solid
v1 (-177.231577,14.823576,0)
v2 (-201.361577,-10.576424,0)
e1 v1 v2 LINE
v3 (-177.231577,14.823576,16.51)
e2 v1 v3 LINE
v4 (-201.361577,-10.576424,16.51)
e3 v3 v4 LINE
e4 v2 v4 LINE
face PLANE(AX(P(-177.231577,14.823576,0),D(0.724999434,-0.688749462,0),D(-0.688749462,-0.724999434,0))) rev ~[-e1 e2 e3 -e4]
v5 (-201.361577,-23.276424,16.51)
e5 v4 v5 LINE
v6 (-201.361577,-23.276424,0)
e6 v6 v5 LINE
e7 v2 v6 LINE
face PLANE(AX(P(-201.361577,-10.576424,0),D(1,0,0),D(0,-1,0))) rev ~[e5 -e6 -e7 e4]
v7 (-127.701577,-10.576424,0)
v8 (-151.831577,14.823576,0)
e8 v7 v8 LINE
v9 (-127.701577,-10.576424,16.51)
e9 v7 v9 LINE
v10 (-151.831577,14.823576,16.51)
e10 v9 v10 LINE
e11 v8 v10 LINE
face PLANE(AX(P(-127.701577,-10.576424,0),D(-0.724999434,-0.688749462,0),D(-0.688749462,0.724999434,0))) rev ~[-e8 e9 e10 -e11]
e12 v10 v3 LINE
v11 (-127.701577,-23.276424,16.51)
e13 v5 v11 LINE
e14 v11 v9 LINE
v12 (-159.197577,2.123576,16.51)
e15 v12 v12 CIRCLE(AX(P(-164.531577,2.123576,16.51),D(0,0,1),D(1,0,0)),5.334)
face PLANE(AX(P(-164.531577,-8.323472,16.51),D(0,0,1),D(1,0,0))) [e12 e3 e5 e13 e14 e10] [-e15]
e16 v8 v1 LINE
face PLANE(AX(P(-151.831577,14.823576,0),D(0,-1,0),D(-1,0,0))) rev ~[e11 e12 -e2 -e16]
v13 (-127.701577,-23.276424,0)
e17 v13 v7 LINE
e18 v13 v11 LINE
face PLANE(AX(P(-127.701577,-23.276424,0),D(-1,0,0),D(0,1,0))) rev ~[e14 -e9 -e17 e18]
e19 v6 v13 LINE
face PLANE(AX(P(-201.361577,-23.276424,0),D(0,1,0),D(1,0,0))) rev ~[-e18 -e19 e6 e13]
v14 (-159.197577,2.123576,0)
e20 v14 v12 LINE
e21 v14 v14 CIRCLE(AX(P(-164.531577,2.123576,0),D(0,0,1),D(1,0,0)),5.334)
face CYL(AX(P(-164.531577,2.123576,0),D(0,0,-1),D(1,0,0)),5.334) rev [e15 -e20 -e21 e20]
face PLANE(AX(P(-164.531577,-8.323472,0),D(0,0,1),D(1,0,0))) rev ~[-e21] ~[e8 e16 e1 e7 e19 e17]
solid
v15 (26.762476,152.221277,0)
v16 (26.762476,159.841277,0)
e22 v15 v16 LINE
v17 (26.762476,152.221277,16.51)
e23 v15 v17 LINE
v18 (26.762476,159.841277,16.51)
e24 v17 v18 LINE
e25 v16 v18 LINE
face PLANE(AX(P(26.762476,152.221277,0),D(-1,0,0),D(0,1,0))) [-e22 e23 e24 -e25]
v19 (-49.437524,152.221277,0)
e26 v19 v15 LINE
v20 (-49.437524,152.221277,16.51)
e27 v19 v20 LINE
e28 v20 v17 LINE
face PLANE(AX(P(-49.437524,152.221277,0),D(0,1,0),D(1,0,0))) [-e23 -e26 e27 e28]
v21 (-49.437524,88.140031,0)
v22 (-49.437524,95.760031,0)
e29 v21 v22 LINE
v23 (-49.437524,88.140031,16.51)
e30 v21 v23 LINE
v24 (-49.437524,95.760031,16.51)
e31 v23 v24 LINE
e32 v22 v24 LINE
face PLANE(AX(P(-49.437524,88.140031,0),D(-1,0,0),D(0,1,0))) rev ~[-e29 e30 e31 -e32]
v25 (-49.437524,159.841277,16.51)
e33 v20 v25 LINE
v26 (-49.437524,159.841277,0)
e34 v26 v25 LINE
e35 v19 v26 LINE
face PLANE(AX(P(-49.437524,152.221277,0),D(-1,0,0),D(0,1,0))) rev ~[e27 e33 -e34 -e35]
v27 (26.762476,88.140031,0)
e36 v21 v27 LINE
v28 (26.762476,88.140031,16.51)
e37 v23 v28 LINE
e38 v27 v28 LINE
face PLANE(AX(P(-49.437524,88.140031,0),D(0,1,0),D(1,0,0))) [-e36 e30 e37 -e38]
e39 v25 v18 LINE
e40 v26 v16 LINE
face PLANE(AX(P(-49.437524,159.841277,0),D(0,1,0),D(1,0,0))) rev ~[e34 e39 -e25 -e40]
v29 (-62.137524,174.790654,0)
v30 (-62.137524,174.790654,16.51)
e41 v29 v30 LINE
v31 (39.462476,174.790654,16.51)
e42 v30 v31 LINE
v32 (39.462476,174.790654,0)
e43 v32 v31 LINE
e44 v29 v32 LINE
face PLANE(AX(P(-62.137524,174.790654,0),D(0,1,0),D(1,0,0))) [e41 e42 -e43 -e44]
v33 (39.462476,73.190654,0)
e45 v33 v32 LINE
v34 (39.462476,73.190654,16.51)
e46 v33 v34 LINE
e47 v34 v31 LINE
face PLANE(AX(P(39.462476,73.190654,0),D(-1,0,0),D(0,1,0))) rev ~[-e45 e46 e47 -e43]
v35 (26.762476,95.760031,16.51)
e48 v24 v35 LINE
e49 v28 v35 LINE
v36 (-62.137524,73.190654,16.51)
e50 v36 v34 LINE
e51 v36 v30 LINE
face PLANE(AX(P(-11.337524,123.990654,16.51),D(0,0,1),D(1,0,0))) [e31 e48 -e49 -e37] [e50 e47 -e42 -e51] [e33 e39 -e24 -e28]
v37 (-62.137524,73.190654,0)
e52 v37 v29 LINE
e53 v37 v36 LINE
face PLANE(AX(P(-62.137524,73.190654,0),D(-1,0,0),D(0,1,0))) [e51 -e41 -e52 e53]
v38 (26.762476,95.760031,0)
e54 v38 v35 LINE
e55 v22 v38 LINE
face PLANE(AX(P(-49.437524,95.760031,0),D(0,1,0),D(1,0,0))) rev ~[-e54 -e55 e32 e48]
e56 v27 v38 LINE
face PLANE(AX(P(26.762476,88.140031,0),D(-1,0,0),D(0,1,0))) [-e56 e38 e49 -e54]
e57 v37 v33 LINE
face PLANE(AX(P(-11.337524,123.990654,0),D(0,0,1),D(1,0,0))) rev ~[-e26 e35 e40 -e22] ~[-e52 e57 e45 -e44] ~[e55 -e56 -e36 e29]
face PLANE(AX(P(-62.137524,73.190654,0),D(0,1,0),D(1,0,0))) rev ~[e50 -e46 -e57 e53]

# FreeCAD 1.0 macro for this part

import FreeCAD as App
import Part
import Sketcher
from FreeCAD import Vector
Q = App.Units.Quantity


def add_polygon(sketch, points):
    """Adds a closed chain of lines whose ends are joined by coincident constraints."""
    first, n = sketch.GeometryCount, len(points)
    for a, b in zip(points, points[1:] + points[:1]):
        sketch.addGeometry(Part.LineSegment(App.Vector(*a, 0), App.Vector(*b, 0)), False)
    for i in range(n):
        sketch.addConstraint(Sketcher.Constraint("Coincident", first + i, 2, first + (i + 1) % n, 1))

doc = App.newDocument("Part")
body = doc.addObject("PartDesign::Body", "Body")

# Sketch on XY plane
sketch1 = body.newObject("Sketcher::SketchObject", "Sketch")
sketch1.AttachmentSupport = (doc.getObject("XY_Plane"), [""])
sketch1.MapMode = "FlatFace"
add_polygon(sketch1, [(-62, 175), (-62, 73), (39, 73), (39, 175)])  # lines 0-3
add_polygon(sketch1, [(27, 88), (-49, 88), (-49, 96), (27, 96)])  # lines 4-7
add_polygon(sketch1, [(27, 152), (-49, 152), (-49, 160), (27, 160)])  # lines 8-11
sketch1.addConstraint(Sketcher.Constraint("Vertical", 0))
sketch1.addConstraint(Sketcher.Constraint("Horizontal", 1))
sketch1.addConstraint(Sketcher.Constraint("Vertical", 2))
sketch1.addConstraint(Sketcher.Constraint("Horizontal", 3))
sketch1.addConstraint(Sketcher.Constraint("Horizontal", 4))
sketch1.addConstraint(Sketcher.Constraint("Vertical", 5))
sketch1.addConstraint(Sketcher.Constraint("Horizontal", 6))
sketch1.addConstraint(Sketcher.Constraint("Vertical", 7))
sketch1.addConstraint(Sketcher.Constraint("Horizontal", 8))
sketch1.addConstraint(Sketcher.Constraint("Vertical", 9))
sketch1.addConstraint(Sketcher.Constraint("Horizontal", 10))
sketch1.addConstraint(Sketcher.Constraint("Vertical", 11))
sketch1.addConstraint(Sketcher.Constraint("Vertical", 5, 2, 8, 2))
sketch1.addConstraint(Sketcher.Constraint("Vertical", 7, 2, 10, 2))
sketch1.addConstraint(Sketcher.Constraint("Equal", 3, 0))
sketch1.addConstraint(Sketcher.Constraint("Equal", 7, 9))
sketch1.addConstraint(Sketcher.Constraint("DistanceX", 1, 1, 1, 2, Q("4 in")))
sketch1.addConstraint(Sketcher.Constraint("DistanceX", 4, 2, 4, 1, Q("3 in")))
sketch1.addConstraint(Sketcher.Constraint("DistanceY", 5, 1, 5, 2, Q("0.3 in")))
sketch1.addConstraint(Sketcher.Constraint("DistanceX", 0, 2, 4, 2, Q("0.5 in")))
sketch1.addConstraint(Sketcher.Constraint("DistanceY", -1, 1, 4, 2, Q("88.140031 mm")))
sketch1.addConstraint(Sketcher.Constraint("DistanceX", 0, 2, -1, 1, Q("62.137524 mm")))
sketch1.addConstraint(Sketcher.Constraint("DistanceY", -1, 1, 0, 2, Q("73.190654 mm")))
sketch1.addConstraint(Sketcher.Constraint("DistanceY", -1, 1, 8, 2, Q("152.221277 mm")))
pad1 = body.newObject("PartDesign::Pad", "Pad")
pad1.Profile = sketch1
pad1.Length = Q("0.65 in")
body2 = doc.addObject("PartDesign::Body", "Body001")

# Sketch on XY plane
sketch2 = body2.newObject("Sketcher::SketchObject", "Sketch001")
sketch2.AttachmentSupport = (doc.getObject("XY_Plane001"), [""])
sketch2.MapMode = "FlatFace"
add_polygon(sketch2, [(-201, -11), (-201, -23), (-128, -23), (-128, -11), (-152, 15), (-177, 15)])  # lines 0-5
sketch2.addGeometry(Part.Circle(Vector(-165, 2, 0), Vector(0, 0, 1), 5), False)  # 6
sketch2.addConstraint(Sketcher.Constraint("Vertical", 0))
sketch2.addConstraint(Sketcher.Constraint("Horizontal", 1))
sketch2.addConstraint(Sketcher.Constraint("Vertical", 2))
sketch2.addConstraint(Sketcher.Constraint("Horizontal", 4))
sketch2.addConstraint(Sketcher.Constraint("Horizontal", 2, 2, 5, 2))
sketch2.addConstraint(Sketcher.Constraint("Equal", 3, 5))
sketch2.addConstraint(Sketcher.Constraint("Diameter", 6, Q("0.42 in")))
sketch2.addConstraint(Sketcher.Constraint("DistanceX", 4, 2, 4, 1, Q("1 in")))
sketch2.addConstraint(Sketcher.Constraint("DistanceX", 1, 1, 1, 2, Q("2.9 in")))
sketch2.addConstraint(Sketcher.Constraint("DistanceY", 0, 2, 0, 1, Q("0.5 in")))
sketch2.addConstraint(Sketcher.Constraint("DistanceY", 0, 2, 6, 3, Q("1 in")))
sketch2.addConstraint(Sketcher.Constraint("DistanceY", 2, 2, 3, 2, Q("1 in")))
sketch2.addConstraint(Sketcher.Constraint("DistanceX", 6, 3, 3, 2, Q("0.5 in")))
sketch2.addConstraint(Sketcher.Constraint("DistanceX", 6, 3, -1, 1, Q("164.531577 mm")))
sketch2.addConstraint(Sketcher.Constraint("DistanceY", -1, 1, 6, 3, Q("2.123576 mm")))
pad2 = body2.newObject("PartDesign::Pad", "Pad001")
pad2.Profile = sketch2
pad2.Length = Q("0.65 in")

doc.recompute()
